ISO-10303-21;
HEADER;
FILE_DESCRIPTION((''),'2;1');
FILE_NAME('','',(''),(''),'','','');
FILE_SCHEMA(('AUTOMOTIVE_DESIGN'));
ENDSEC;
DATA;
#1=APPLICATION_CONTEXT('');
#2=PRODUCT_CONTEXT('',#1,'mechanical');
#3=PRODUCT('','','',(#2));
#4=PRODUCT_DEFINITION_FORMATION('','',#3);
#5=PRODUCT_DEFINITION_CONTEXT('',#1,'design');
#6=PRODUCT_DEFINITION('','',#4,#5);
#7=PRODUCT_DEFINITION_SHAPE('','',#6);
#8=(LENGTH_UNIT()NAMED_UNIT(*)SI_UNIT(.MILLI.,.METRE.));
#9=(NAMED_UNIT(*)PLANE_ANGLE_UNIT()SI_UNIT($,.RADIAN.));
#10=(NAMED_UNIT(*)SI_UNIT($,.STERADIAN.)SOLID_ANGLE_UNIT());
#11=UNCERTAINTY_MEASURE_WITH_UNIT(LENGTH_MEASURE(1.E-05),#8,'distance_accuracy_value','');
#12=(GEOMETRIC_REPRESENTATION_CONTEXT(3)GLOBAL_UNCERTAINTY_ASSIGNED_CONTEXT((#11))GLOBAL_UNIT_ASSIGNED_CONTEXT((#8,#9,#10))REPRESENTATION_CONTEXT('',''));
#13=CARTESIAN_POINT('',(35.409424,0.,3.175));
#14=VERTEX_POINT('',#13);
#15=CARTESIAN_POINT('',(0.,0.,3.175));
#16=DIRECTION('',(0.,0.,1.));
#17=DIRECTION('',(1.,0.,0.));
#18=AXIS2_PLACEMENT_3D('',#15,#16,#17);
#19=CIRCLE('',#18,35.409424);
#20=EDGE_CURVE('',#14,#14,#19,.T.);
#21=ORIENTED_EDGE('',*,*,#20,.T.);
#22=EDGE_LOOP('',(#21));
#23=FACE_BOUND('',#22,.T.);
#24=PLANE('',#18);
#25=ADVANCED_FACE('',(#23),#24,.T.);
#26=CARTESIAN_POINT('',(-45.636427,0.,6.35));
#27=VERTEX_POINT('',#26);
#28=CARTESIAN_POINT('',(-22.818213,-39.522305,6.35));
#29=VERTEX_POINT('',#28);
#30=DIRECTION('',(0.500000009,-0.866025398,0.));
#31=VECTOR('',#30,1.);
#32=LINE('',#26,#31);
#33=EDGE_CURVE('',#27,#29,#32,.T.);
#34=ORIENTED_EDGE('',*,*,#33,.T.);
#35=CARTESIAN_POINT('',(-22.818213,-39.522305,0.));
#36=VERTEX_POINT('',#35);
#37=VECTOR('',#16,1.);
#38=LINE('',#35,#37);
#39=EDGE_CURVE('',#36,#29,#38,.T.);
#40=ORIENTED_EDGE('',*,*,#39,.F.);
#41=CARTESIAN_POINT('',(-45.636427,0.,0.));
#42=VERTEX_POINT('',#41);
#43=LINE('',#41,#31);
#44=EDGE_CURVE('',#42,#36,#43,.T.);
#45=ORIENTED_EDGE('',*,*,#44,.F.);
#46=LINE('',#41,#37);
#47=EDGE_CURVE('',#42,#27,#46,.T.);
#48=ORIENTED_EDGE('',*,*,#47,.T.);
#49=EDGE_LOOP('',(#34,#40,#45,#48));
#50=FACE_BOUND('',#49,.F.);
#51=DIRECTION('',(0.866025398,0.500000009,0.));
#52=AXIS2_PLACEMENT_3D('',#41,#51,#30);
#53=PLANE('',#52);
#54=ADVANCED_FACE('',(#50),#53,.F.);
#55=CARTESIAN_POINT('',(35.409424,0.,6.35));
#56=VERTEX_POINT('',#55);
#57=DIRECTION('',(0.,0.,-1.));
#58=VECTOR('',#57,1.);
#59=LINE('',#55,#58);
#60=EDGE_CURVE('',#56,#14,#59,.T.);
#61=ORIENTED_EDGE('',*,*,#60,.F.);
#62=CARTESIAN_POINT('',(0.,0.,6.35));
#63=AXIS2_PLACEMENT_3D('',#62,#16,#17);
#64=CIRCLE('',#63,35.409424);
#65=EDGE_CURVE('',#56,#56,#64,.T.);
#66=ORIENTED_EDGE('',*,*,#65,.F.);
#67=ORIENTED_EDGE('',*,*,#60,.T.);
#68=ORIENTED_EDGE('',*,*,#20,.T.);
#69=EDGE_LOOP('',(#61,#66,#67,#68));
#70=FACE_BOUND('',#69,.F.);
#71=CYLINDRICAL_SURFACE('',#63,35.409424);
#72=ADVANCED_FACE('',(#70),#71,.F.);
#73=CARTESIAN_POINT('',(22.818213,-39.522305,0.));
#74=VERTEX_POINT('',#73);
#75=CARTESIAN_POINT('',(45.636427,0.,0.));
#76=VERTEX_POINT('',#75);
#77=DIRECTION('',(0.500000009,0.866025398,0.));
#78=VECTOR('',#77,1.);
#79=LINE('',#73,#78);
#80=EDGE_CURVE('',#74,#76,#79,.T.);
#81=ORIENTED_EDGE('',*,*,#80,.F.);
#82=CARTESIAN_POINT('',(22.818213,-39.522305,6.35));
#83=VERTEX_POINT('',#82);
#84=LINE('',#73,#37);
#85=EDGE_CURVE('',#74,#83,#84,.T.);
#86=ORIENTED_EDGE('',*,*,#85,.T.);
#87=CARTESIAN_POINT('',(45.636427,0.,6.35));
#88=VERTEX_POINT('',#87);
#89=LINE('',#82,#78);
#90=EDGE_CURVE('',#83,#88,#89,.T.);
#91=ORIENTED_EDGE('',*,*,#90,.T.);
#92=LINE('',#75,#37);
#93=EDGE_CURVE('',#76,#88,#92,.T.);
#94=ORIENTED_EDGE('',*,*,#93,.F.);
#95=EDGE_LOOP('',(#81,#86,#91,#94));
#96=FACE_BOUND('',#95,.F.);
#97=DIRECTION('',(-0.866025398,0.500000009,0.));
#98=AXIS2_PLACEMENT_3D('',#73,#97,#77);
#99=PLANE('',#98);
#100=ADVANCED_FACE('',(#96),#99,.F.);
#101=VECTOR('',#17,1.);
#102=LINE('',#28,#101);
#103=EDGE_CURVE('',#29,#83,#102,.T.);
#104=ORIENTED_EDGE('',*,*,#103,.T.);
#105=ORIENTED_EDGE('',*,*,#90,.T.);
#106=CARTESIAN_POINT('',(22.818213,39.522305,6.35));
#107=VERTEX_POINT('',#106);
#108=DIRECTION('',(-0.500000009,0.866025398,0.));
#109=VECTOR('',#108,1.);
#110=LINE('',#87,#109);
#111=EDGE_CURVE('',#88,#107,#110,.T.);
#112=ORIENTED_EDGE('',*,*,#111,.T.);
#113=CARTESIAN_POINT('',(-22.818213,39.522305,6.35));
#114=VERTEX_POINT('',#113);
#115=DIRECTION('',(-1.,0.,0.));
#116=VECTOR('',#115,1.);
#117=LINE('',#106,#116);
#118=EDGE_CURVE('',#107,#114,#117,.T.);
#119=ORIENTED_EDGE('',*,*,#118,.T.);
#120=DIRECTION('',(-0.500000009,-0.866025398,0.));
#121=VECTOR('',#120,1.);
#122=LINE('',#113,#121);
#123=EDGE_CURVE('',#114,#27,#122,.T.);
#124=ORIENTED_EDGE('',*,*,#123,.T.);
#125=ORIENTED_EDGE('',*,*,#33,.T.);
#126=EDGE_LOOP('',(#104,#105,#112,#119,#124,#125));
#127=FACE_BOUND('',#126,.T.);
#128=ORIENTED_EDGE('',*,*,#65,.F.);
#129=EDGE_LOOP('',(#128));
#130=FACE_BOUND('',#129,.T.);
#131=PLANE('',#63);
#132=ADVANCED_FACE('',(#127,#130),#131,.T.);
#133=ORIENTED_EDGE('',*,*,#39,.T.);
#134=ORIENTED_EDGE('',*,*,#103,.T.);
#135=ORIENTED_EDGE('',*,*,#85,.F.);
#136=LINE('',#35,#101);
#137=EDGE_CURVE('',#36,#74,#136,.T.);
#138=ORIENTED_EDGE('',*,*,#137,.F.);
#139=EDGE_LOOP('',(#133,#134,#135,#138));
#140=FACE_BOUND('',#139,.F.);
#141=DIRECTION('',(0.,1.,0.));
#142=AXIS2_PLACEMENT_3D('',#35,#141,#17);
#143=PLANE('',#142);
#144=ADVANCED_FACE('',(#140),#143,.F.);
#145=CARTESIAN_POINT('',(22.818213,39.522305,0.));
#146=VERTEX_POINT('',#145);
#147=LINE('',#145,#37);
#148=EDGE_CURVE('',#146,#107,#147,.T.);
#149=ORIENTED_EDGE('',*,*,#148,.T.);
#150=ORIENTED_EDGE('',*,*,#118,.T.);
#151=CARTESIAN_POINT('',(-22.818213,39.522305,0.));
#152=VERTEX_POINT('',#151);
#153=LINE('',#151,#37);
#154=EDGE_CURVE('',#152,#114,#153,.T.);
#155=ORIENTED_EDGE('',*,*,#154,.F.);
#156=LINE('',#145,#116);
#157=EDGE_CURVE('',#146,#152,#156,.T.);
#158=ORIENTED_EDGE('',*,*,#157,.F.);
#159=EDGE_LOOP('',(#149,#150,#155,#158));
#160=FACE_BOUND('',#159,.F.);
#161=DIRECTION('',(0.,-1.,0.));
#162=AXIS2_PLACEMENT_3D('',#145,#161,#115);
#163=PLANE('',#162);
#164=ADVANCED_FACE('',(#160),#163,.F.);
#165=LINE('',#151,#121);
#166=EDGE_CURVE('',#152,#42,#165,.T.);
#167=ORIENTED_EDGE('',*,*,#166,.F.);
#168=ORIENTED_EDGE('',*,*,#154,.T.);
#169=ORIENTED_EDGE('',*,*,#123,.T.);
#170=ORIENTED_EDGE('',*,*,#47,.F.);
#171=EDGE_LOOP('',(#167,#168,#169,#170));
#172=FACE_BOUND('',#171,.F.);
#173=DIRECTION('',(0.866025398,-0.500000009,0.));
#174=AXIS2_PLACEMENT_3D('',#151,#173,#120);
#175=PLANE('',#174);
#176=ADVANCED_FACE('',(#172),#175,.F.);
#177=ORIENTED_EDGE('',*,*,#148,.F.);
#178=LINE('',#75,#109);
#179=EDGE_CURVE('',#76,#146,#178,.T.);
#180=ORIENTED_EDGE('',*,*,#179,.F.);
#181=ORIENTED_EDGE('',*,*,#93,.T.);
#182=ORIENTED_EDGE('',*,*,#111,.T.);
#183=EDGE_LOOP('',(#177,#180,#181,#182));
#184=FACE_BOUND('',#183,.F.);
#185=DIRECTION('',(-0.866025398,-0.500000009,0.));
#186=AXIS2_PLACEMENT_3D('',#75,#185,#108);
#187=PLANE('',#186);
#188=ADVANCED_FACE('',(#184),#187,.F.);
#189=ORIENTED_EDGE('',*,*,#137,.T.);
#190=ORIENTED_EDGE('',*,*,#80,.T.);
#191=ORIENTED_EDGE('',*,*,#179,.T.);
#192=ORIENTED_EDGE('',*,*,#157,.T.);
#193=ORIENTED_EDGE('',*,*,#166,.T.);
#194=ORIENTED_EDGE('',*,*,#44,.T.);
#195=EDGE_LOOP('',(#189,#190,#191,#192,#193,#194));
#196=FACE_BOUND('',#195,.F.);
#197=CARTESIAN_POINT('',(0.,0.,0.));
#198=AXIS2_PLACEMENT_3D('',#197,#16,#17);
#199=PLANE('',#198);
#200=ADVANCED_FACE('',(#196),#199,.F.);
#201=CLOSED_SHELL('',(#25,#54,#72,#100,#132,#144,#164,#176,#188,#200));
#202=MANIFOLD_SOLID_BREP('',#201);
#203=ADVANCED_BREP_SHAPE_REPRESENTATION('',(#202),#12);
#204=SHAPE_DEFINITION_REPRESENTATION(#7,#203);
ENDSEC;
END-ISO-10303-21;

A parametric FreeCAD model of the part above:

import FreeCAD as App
import Part
import Sketcher
from FreeCAD import Vector
Q = App.Units.Quantity

doc = App.newDocument("Part")
params = doc.addObject("Spreadsheet::Sheet", "Params")
for row, (alias, value) in enumerate([
    ("pad1_length", "0.25 in"),
    ("pocket1_length", "0.125 in"),
], start=1):
    params.set(f"A{row}", alias)
    params.set(f"B{row}", "=" + value)
    params.setAlias(f"B{row}", alias)

body = doc.addObject("PartDesign::Body", "Body")

# Sketch on XY plane
sketch1 = body.newObject("Sketcher::SketchObject", "Sketch")
sketch1.AttachmentSupport = (doc.getObject("XY_Plane"), [""])
sketch1.MapMode = "FlatFace"
sketch1.addGeometry(Part.LineSegment(Vector(23, 40, 0), Vector(-23, 40, 0)), False)
sketch1.addGeometry(Part.LineSegment(Vector(-23, 40, 0), Vector(-46, 0, 0)), False)
sketch1.addGeometry(Part.LineSegment(Vector(-46, 0, 0), Vector(-23, -40, 0)), False)
sketch1.addGeometry(Part.LineSegment(Vector(-23, -40, 0), Vector(23, -40, 0)), False)
sketch1.addGeometry(Part.LineSegment(Vector(23, -40, 0), Vector(46, 0, 0)), False)
sketch1.addGeometry(Part.LineSegment(Vector(46, 0, 0), Vector(23, 40, 0)), False)
sketch1.addConstraint(Sketcher.Constraint("Coincident", 0, 2, 1, 1))
sketch1.addConstraint(Sketcher.Constraint("Coincident", 1, 2, 2, 1))
sketch1.addConstraint(Sketcher.Constraint("Coincident", 2, 2, 3, 1))
sketch1.addConstraint(Sketcher.Constraint("Coincident", 3, 2, 4, 1))
sketch1.addConstraint(Sketcher.Constraint("Coincident", 4, 2, 5, 1))
sketch1.addConstraint(Sketcher.Constraint("Coincident", 5, 2, 0, 1))
sketch1.addConstraint(Sketcher.Constraint("Horizontal", 0))
sketch1.addConstraint(Sketcher.Constraint("Horizontal", 3))
sketch1.addConstraint(Sketcher.Constraint("Symmetric", 0, 2, 3, 2, -1, 1))
sketch1.addConstraint(Sketcher.Constraint("Symmetric", 1, 2, 4, 2, -1, 1))
sketch1.addConstraint(Sketcher.Constraint("PointOnObject", 1, 2, -1))
sketch1.addConstraint(Sketcher.Constraint("Parallel", 2, 5))
sketch1.addConstraint(Sketcher.Constraint("Vertical", 0, 2, 2, 2))
sketch1.addConstraint(Sketcher.Constraint("Angle", 1, Q("-120.000001 deg")))
sketch1.addConstraint(Sketcher.Constraint("DistanceX", 0, 2, 0, 1, Q("45.636426 mm")))
sketch1.addConstraint(Sketcher.Constraint("DistanceY", 2, 2, 0, 2, Q("79.04461 mm")))
pad1 = body.newObject("PartDesign::Pad", "Pad")
pad1.Profile = sketch1
pad1.setExpression("Length", "Params.pad1_length")

# Sketch on XY plane
sketch2 = body.newObject("Sketcher::SketchObject", "Sketch001")
sketch2.AttachmentSupport = (doc.getObject("XY_Plane"), [""])
sketch2.MapMode = "FlatFace"
sketch2.AttachmentOffset = App.Placement(Vector(0, 0, 0.25 * 25.4), App.Rotation())
sketch2.addGeometry(Part.Circle(Vector(0, 0, 0), Vector(0, 0, 1), 35), False)
sketch2.addConstraint(Sketcher.Constraint("Coincident", 0, 3, -1, 1))
sketch2.addConstraint(Sketcher.Constraint("Diameter", 0, Q("70.818848 mm")))
pocket1 = body.newObject("PartDesign::Pocket", "Pocket")
pocket1.Profile = sketch2
pocket1.setExpression("Length", "Params.pocket1_length")

doc.recompute()
